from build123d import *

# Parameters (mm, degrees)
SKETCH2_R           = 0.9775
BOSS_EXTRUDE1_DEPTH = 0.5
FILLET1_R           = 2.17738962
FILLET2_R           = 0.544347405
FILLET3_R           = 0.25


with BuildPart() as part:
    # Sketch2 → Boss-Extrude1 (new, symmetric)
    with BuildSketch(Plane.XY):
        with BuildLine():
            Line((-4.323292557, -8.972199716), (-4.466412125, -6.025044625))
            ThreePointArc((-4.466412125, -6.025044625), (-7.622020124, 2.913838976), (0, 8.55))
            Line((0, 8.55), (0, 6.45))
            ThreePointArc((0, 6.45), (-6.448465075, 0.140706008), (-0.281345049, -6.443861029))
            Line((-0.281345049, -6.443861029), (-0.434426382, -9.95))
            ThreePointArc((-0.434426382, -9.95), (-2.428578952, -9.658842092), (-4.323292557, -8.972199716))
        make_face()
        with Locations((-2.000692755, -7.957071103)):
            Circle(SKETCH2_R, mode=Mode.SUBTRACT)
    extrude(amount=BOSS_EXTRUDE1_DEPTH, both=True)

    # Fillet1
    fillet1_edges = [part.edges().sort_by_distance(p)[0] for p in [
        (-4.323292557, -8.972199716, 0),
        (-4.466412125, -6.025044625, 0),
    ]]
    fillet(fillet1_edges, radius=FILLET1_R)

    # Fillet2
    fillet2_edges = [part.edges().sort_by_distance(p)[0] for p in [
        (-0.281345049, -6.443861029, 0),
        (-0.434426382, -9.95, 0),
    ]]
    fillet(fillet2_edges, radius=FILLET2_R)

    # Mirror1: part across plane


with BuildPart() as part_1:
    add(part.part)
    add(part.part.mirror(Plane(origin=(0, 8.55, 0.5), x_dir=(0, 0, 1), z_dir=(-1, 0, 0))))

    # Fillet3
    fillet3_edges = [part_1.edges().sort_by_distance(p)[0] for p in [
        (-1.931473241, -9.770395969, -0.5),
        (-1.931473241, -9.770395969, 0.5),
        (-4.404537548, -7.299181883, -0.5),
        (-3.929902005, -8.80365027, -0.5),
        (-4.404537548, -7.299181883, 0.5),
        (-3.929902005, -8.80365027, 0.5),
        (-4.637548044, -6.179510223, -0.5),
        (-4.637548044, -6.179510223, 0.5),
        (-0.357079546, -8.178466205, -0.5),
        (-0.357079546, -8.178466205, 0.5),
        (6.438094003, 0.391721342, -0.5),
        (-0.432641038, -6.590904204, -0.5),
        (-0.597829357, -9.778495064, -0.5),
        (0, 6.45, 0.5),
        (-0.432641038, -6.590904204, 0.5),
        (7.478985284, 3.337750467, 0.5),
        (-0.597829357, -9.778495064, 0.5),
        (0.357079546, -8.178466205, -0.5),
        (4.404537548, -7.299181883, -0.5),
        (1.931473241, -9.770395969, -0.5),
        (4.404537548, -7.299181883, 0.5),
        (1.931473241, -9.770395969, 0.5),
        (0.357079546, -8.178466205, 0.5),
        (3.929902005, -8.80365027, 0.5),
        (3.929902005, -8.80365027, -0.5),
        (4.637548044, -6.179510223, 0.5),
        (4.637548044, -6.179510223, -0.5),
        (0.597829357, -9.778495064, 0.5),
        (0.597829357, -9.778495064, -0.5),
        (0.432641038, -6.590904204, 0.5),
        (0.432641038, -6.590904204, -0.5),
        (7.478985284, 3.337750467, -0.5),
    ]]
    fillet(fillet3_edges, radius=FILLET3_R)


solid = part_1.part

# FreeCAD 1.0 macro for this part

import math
import FreeCAD as App
import Part
import Sketcher

V = App.Vector
Q = App.Units.Quantity


def edges_at(feature, points):
    """Names of the edges that pass closest to the given points."""
    edges = feature.Shape.Edges
    near = lambda p: min(range(len(edges)), key=lambda i: edges[i].distToShape(Part.Vertex(*p))[0])
    return sorted({f"Edge{near(p) + 1}" for p in points})

doc = App.newDocument("Part")
body = doc.addObject("PartDesign::Body", "Body")

sketch1 = body.newObject("Sketcher::SketchObject", "Sketch")
sketch1.AttachmentSupport = (doc.getObject("XY_Plane"), [""])
sketch1.MapMode = "FlatFace"
sketch1.addGeometry([
    Part.LineSegment(V(-4.5, -6, 0), V(-4.3, -9, 0)),
    Part.ArcOfCircle(Part.Circle(V(0, 0, 0), V(0, 0, 1), 10), math.radians(-116), math.radians(-92)),
    Part.LineSegment(V(-0.4, -9.9, 0), V(-0.3, -6.4, 0)),
    Part.ArcOfCircle(Part.Circle(V(0, 0, 0), V(0, 0, 1), 6.5), math.radians(90), math.radians(267)),
    Part.LineSegment(V(0, 6.5, 0), V(0, 8.6, 0)),
    Part.ArcOfCircle(Part.Circle(V(0, 0.6, 0), V(0, 0, 1), 8), math.radians(90), math.radians(236)),
    Part.Circle(V(-2, -8, 0), V(0, 0, 1), 1),
], False)
sketch1.addConstraint([
    Sketcher.Constraint("Coincident", 0, 2, 1, 1),
    Sketcher.Constraint("Coincident", 1, 2, 2, 1),
    Sketcher.Constraint("Coincident", 2, 2, 3, 2),
    Sketcher.Constraint("Coincident", 3, 1, 4, 1),
    Sketcher.Constraint("Coincident", 4, 2, 5, 1),
    Sketcher.Constraint("Coincident", 5, 2, 0, 1),
    Sketcher.Constraint("Vertical", 4),
    Sketcher.Constraint("Coincident", 1, 3, -1, 1),
    Sketcher.Constraint("Coincident", 3, 3, -1, 1),
    Sketcher.Constraint("PointOnObject", 5, 3, -2),
    Sketcher.Constraint("PointOnObject", 3, 1, -2),
    Sketcher.Constraint("Radius", 3, Q("6.45 mm")),
    Sketcher.Constraint("Diameter", 6, Q("1.955 mm")),
    Sketcher.Constraint("DistanceY", 4, 1, 4, 2, Q("2.1 mm")),
    Sketcher.Constraint("Angle", 2, Q("87.5 deg")),
    Sketcher.Constraint("DistanceY", 1, 2, -1, 1, Q("9.95 mm")),
    Sketcher.Constraint("Radius", 1, Q("9.959479 mm")),
    Sketcher.Constraint("Radius", 5, Q("7.971871 mm")),
    Sketcher.Constraint("DistanceY", 0, 2, -1, 1, Q("8.9722 mm")),
    Sketcher.Constraint("DistanceY", 6, 3, 5, 3, Q("8.5352 mm")),
    Sketcher.Constraint("DistanceX", 0, 2, 6, 3, Q("2.3226 mm")),
    Sketcher.Constraint("Distance", 0, Q("2.950628 mm")),
])
pad1 = body.newObject("PartDesign::Pad", "Pad")
pad1.Profile = sketch1
pad1.Length = 1
pad1.Midplane = True
doc.recompute()

fillet = body.newObject("PartDesign::Fillet", "Fillet")
fillet.Base = (pad1, edges_at(pad1, [(-4.323, -8.972, 0), (-4.466, -6.025, 0)]))
fillet.Radius = 2.17739
doc.recompute()

fillet2 = body.newObject("PartDesign::Fillet", "Fillet001")
fillet2.Base = (fillet, edges_at(fillet, [(-0.281, -6.444, 0), (-0.434, -9.95, 0)]))
fillet2.Radius = 0.544347
body2 = doc.addObject("PartDesign::Body", "Body001")
doc.recompute()

body2.BaseFeature = body
doc.recompute()

mirroring = doc.addObject("Part::Mirroring", "Mirroring")
mirroring.Source = body
mirroring.Base = V(0, 8.55, 0.5)
mirroring.Normal = V(-1, 0, 0)
body3 = doc.addObject("PartDesign::Body", "Body002")
body3.BaseFeature = mirroring
boolean = body2.newObject("PartDesign::Boolean", "Boolean")
boolean.Type = "Fuse"
boolean.addObjects([body3])
doc.recompute()

fillet3 = body2.newObject("PartDesign::Fillet", "Fillet002")
fillet3.Base = (boolean, edges_at(boolean, [
    (-1.931, -9.77, -0.5),
    (-1.931, -9.77, 0.5),
    (-4.405, -7.299, -0.5),
    (-3.93, -8.804, -0.5),
    (-4.405, -7.299, 0.5),
    (-3.93, -8.804, 0.5),
    (-4.638, -6.18, -0.5),
    (-4.638, -6.18, 0.5),
    (-0.357, -8.178, -0.5),
    (-0.357, -8.178, 0.5),
    (6.438, 0.392, -0.5),
    (-0.433, -6.591, -0.5),
    (-0.598, -9.778, -0.5),
    (0, 6.45, 0),
    (-0.433, -6.591, 0.5),
    (7.479, 3.338, 0.5),
    (-0.598, -9.778, 0.5),
    (0.357, -8.178, -0.5),
    (4.405, -7.299, -0.5),
    (1.931, -9.77, -0.5),
    (4.405, -7.299, 0.5),
    (1.931, -9.77, 0.5),
    (0.357, -8.178, 0.5),
    (3.93, -8.804, 0.5),
    (3.93, -8.804, -0.5),
    (4.638, -6.18, 0.5),
    (4.638, -6.18, -0.5),
    (0.598, -9.778, 0.5),
    (0.598, -9.778, -0.5),
    (0.433, -6.591, 0.5),
    (0.433, -6.591, -0.5),
    (7.479, 3.338, -0.5),
]))
fillet3.Radius = 0.25
mirroring.Visibility = False

doc.recompute()
